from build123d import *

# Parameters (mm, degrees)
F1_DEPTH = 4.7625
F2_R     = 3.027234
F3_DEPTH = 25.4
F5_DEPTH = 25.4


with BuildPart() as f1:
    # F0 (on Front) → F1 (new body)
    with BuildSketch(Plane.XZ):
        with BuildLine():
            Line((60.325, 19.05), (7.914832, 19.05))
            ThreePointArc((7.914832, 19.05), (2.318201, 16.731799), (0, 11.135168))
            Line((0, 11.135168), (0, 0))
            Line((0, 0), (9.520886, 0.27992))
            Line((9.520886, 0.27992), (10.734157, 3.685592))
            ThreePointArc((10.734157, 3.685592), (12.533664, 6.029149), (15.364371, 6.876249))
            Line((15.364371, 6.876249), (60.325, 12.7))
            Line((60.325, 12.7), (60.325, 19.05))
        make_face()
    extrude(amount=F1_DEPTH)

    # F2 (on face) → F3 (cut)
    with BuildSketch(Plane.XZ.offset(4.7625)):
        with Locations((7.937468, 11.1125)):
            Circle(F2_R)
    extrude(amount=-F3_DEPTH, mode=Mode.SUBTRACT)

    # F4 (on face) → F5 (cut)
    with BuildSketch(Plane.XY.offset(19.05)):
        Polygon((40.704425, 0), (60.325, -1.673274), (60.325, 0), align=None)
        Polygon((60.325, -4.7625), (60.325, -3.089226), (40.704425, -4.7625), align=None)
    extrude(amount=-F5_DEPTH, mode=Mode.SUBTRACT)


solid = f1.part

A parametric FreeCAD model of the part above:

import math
import FreeCAD as App
import Part
import Sketcher

V = App.Vector
Q = App.Units.Quantity


def add_polygon(sketch, points):
    """Adds a closed chain of lines whose ends are joined by coincident constraints."""
    first, n = sketch.GeometryCount, len(points)
    for a, b in zip(points, points[1:] + points[:1]):
        sketch.addGeometry(Part.LineSegment(App.Vector(*a, 0), App.Vector(*b, 0)), False)
    for i in range(n):
        sketch.addConstraint(Sketcher.Constraint("Coincident", first + i, 2, first + (i + 1) % n, 1))

doc = App.newDocument("Part")
body = doc.addObject("PartDesign::Body", "Body")

# Sketch on XZ plane
sketch1 = body.newObject("Sketcher::SketchObject", "Sketch")
sketch1.AttachmentSupport = (doc.getObject("XZ_Plane"), [""])
sketch1.MapMode = "FlatFace"
sketch1.addGeometry([
    Part.LineSegment(V(60.3, 19.1, 0), V(7.9, 19.1, 0)),  # 0
    Part.ArcOfCircle(Part.Circle(V(7.9, 11.1, 0), V(0, 0, 1), 7.9), math.radians(90), math.radians(180)),  # 1
    Part.LineSegment(V(0, 11.1, 0), V(0, 0, 0)),  # 2
    Part.LineSegment(V(0, 0, 0), V(9.5, 0.3, 0)),  # 3
    Part.LineSegment(V(9.5, 0.3, 0), V(10.7, 3.7, 0)),  # 4
    Part.ArcOfCircle(Part.Circle(V(15.3, 2.1, 0), V(0, 0, 1), 4.8), math.radians(89), math.radians(160)),  # 5
    Part.LineSegment(V(15.4, 6.9, 0), V(60.3, 12.7, 0)),  # 6
    Part.LineSegment(V(60.3, 12.7, 0), V(60.3, 19.1, 0)),  # 7
], False)
sketch1.addConstraint([
    Sketcher.Constraint("Tangent", 0, 2, 1, 1),
    Sketcher.Constraint("Tangent", 1, 2, 2, 1),
    Sketcher.Constraint("Coincident", 2, 2, 3, 1),
    Sketcher.Constraint("Coincident", 3, 2, 4, 1),
    Sketcher.Constraint("Tangent", 4, 2, 5, 2),
    Sketcher.Constraint("Coincident", 5, 1, 6, 1),
    Sketcher.Constraint("Coincident", 6, 2, 7, 1),
    Sketcher.Constraint("Coincident", 7, 2, 0, 1),
    Sketcher.Constraint("Horizontal", 0),
    Sketcher.Constraint("Vertical", 2),
    Sketcher.Constraint("Vertical", 7),
    Sketcher.Constraint("Coincident", 2, 2, -1, 1),
    Sketcher.Constraint("DistanceY", 7, 1, 7, 2, Q("0.25 in")),
    Sketcher.Constraint("DistanceY", -1, 1, 6, 2, Q("0.5 in")),
    Sketcher.Constraint("Distance", 3, Q("0.375 in")),
    Sketcher.Constraint("DistanceX", -1, 1, 6, 2, Q("2.375 in")),
    Sketcher.Constraint("Radius", 1, 7.914833),
    Sketcher.Constraint("Radius", 5, 4.803966),
    Sketcher.Constraint("DistanceX", 1, 3, 5, 3, 7.344698),
    Sketcher.Constraint("DistanceY", -1, 1, 3, 2, 0.27992),
    Sketcher.Constraint("DistanceX", -1, 1, 5, 1, 15.364371),
    Sketcher.Constraint("DistanceY", -1, 1, 5, 1, 6.876249),
])
pad1 = body.newObject("PartDesign::Pad", "Pad")
pad1.Profile = sketch1
pad1.Length = Q("0.1875 in")

# Sketch on XZ plane
sketch2 = body.newObject("Sketcher::SketchObject", "Sketch001")
sketch2.AttachmentSupport = (doc.getObject("XZ_Plane"), [""])
sketch2.MapMode = "FlatFace"
sketch2.AttachmentOffset = App.Placement(V(0, 0, 0.1875 * 25.4), App.Rotation())
sketch2.addGeometry(Part.Circle(V(7.9, 11.1, 0), V(0, 0, 1), 3), False)
sketch2.addConstraint([
    Sketcher.Constraint("DistanceY", -1, 1, 0, 3, Q("0.4375 in")),
    Sketcher.Constraint("Diameter", 0, 6.054468),
    Sketcher.Constraint("DistanceX", -1, 1, 0, 3, 7.937468),
])
pocket1 = body.newObject("PartDesign::Pocket", "Pocket")
pocket1.Profile = sketch2
pocket1.Length = Q("1 in")

# Sketch on XY plane
sketch3 = body.newObject("Sketcher::SketchObject", "Sketch002")
sketch3.AttachmentSupport = (doc.getObject("XY_Plane"), [""])
sketch3.MapMode = "FlatFace"
sketch3.AttachmentOffset = App.Placement(V(0, 0, 0.75 * 25.4), App.Rotation())
add_polygon(sketch3, [(40.7, 0), (60.3, -1.7), (60.3, 0)])  # lines 0-2
add_polygon(sketch3, [(60.3, -4.8), (60.3, -3.1), (40.7, -4.8)])  # lines 3-5
sketch3.addConstraint([
    Sketcher.Constraint("Vertical", 1),
    Sketcher.Constraint("Horizontal", 2),
    Sketcher.Constraint("Vertical", 3),
    Sketcher.Constraint("Horizontal", 5),
    Sketcher.Constraint("PointOnObject", 1, 2, -1),
    Sketcher.Constraint("Vertical", 1, 2, 3, 2),
    Sketcher.Constraint("Vertical", 2, 2, 4, 2),
    Sketcher.Constraint("Equal", 1, 3),
    Sketcher.Constraint("DistanceX", -1, 1, 0, 2, Q("2.375 in")),
    Sketcher.Constraint("DistanceY", 4, 2, -1, 1, Q("0.1875 in")),
    Sketcher.Constraint("DistanceX", 2, 2, 2, 1, 19.620575),
    Sketcher.Constraint("DistanceY", 1, 1, 1, 2, 1.673274),
])
pocket2 = body.newObject("PartDesign::Pocket", "Pocket001")
pocket2.Profile = sketch3
pocket2.Length = Q("1 in")

doc.recompute()
